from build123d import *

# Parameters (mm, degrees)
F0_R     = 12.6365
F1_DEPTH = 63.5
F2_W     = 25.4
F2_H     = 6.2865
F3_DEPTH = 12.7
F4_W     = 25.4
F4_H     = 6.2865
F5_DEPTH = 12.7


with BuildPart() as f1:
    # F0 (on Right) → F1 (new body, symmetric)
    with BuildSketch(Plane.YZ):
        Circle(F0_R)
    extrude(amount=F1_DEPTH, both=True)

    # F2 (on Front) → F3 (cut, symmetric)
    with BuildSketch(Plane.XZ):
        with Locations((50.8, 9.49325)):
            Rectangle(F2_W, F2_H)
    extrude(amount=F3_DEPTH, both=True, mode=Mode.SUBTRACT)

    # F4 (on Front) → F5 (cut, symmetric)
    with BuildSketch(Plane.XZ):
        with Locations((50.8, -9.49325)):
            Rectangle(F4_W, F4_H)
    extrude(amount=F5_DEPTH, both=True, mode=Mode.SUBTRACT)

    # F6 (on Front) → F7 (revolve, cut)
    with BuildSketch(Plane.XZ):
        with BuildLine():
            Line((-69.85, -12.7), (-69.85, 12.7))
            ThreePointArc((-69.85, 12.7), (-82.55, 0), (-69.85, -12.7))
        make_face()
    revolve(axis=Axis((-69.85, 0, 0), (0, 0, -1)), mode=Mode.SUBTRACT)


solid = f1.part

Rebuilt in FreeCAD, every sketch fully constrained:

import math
import FreeCAD as App
import Part
import Sketcher
Q = App.Units.Quantity


def add_polygon(sketch, points):
    """Adds a closed chain of lines whose ends are joined by coincident constraints."""
    first, n = sketch.GeometryCount, len(points)
    for a, b in zip(points, points[1:] + points[:1]):
        sketch.addGeometry(Part.LineSegment(App.Vector(*a, 0), App.Vector(*b, 0)), False)
    for i in range(n):
        sketch.addConstraint(Sketcher.Constraint("Coincident", first + i, 2, first + (i + 1) % n, 1))

doc = App.newDocument("Part")
body = doc.addObject("PartDesign::Body", "Body")

sketch1 = body.newObject("Sketcher::SketchObject", "Sketch")
sketch1.AttachmentSupport = (doc.getObject("YZ_Plane"), [""])
sketch1.MapMode = "FlatFace"
sketch1.addGeometry(Part.Circle(App.Vector(0, 0, 0), App.Vector(0, 0, 1), 13), False)
sketch1.addConstraint([
    Sketcher.Constraint("Coincident", 0, 3, -1, 1),
    Sketcher.Constraint("Diameter", 0, Q("0.995 in")),
])
pad1 = body.newObject("PartDesign::Pad", "Pad")
pad1.Profile = sketch1
pad1.Length = Q("5 in")
pad1.Midplane = True

sketch2 = body.newObject("Sketcher::SketchObject", "Sketch001")
sketch2.AttachmentSupport = (doc.getObject("XZ_Plane"), [""])
sketch2.MapMode = "FlatFace"
add_polygon(sketch2, [(38, 13), (38, 6), (64, 6), (64, 13)])
sketch2.addConstraint([
    Sketcher.Constraint("Vertical", 0),
    Sketcher.Constraint("Horizontal", 1),
    Sketcher.Constraint("Vertical", 2),
    Sketcher.Constraint("Horizontal", 3),
    Sketcher.Constraint("DistanceX", 1, 1, 1, 2, Q("1 in")),
    Sketcher.Constraint("DistanceX", -1, 1, 0, 2, Q("1.5 in")),
    Sketcher.Constraint("DistanceY", -1, 1, 0, 2, Q("0.25 in")),
    Sketcher.Constraint("DistanceY", 0, 2, 0, 1, Q("0.2475 in")),
])
pocket1 = body.newObject("PartDesign::Pocket", "Pocket")
pocket1.Profile = sketch2
pocket1.Length = Q("1 in")
pocket1.Midplane = True

sketch3 = body.newObject("Sketcher::SketchObject", "Sketch002")
sketch3.AttachmentSupport = (doc.getObject("XZ_Plane"), [""])
sketch3.MapMode = "FlatFace"
add_polygon(sketch3, [(38, -6), (38, -13), (64, -13), (64, -6)])
sketch3.addConstraint([
    Sketcher.Constraint("Vertical", 0),
    Sketcher.Constraint("Horizontal", 1),
    Sketcher.Constraint("Vertical", 2),
    Sketcher.Constraint("Horizontal", 3),
    Sketcher.Constraint("DistanceX", 1, 1, 1, 2, Q("1 in")),
    Sketcher.Constraint("DistanceX", -1, 1, 0, 2, Q("1.5 in")),
    Sketcher.Constraint("DistanceY", 2, 2, -1, 1, Q("0.25 in")),
    Sketcher.Constraint("DistanceY", 0, 2, 0, 1, Q("0.2475 in")),
])
pocket2 = body.newObject("PartDesign::Pocket", "Pocket001")
pocket2.Profile = sketch3
pocket2.Length = Q("1 in")
pocket2.Midplane = True

sketch4 = body.newObject("Sketcher::SketchObject", "Sketch003")
sketch4.AttachmentSupport = (doc.getObject("XZ_Plane"), [""])
sketch4.MapMode = "FlatFace"
sketch4.addGeometry([
    Part.LineSegment(App.Vector(-70, -13, 0), App.Vector(-70, 13, 0)),
    Part.ArcOfCircle(Part.Circle(App.Vector(-70, 0, 0), App.Vector(0, 0, 1), 13), math.radians(90), math.radians(270)),
], False)
sketch4.addGeometry(Part.LineSegment(App.Vector(-70, 13, 0), App.Vector(-70, -13, 0)), True)
sketch4.addConstraint([
    Sketcher.Constraint("Coincident", 0, 1, 1, 2),
    Sketcher.Constraint("Coincident", 1, 1, 0, 2),
    Sketcher.Constraint("Vertical", 0),
    Sketcher.Constraint("Vertical", 2),
    Sketcher.Constraint("Coincident", 2, 1, 1, 1),
    Sketcher.Constraint("PointOnObject", 1, 3, -1),
    Sketcher.Constraint("Vertical", 1, 3, 0, 1),
    Sketcher.Constraint("Equal", 0, 2),
    Sketcher.Constraint("Radius", 1, Q("0.5 in")),
    Sketcher.Constraint("DistanceX", 1, 3, -1, 1, Q("2.75 in")),
])
groove = body.newObject("PartDesign::Groove", "Groove")
groove.Profile = sketch4
groove.ReferenceAxis = (sketch4, ["Axis0"])
groove.Angle = 360

doc.recompute()
